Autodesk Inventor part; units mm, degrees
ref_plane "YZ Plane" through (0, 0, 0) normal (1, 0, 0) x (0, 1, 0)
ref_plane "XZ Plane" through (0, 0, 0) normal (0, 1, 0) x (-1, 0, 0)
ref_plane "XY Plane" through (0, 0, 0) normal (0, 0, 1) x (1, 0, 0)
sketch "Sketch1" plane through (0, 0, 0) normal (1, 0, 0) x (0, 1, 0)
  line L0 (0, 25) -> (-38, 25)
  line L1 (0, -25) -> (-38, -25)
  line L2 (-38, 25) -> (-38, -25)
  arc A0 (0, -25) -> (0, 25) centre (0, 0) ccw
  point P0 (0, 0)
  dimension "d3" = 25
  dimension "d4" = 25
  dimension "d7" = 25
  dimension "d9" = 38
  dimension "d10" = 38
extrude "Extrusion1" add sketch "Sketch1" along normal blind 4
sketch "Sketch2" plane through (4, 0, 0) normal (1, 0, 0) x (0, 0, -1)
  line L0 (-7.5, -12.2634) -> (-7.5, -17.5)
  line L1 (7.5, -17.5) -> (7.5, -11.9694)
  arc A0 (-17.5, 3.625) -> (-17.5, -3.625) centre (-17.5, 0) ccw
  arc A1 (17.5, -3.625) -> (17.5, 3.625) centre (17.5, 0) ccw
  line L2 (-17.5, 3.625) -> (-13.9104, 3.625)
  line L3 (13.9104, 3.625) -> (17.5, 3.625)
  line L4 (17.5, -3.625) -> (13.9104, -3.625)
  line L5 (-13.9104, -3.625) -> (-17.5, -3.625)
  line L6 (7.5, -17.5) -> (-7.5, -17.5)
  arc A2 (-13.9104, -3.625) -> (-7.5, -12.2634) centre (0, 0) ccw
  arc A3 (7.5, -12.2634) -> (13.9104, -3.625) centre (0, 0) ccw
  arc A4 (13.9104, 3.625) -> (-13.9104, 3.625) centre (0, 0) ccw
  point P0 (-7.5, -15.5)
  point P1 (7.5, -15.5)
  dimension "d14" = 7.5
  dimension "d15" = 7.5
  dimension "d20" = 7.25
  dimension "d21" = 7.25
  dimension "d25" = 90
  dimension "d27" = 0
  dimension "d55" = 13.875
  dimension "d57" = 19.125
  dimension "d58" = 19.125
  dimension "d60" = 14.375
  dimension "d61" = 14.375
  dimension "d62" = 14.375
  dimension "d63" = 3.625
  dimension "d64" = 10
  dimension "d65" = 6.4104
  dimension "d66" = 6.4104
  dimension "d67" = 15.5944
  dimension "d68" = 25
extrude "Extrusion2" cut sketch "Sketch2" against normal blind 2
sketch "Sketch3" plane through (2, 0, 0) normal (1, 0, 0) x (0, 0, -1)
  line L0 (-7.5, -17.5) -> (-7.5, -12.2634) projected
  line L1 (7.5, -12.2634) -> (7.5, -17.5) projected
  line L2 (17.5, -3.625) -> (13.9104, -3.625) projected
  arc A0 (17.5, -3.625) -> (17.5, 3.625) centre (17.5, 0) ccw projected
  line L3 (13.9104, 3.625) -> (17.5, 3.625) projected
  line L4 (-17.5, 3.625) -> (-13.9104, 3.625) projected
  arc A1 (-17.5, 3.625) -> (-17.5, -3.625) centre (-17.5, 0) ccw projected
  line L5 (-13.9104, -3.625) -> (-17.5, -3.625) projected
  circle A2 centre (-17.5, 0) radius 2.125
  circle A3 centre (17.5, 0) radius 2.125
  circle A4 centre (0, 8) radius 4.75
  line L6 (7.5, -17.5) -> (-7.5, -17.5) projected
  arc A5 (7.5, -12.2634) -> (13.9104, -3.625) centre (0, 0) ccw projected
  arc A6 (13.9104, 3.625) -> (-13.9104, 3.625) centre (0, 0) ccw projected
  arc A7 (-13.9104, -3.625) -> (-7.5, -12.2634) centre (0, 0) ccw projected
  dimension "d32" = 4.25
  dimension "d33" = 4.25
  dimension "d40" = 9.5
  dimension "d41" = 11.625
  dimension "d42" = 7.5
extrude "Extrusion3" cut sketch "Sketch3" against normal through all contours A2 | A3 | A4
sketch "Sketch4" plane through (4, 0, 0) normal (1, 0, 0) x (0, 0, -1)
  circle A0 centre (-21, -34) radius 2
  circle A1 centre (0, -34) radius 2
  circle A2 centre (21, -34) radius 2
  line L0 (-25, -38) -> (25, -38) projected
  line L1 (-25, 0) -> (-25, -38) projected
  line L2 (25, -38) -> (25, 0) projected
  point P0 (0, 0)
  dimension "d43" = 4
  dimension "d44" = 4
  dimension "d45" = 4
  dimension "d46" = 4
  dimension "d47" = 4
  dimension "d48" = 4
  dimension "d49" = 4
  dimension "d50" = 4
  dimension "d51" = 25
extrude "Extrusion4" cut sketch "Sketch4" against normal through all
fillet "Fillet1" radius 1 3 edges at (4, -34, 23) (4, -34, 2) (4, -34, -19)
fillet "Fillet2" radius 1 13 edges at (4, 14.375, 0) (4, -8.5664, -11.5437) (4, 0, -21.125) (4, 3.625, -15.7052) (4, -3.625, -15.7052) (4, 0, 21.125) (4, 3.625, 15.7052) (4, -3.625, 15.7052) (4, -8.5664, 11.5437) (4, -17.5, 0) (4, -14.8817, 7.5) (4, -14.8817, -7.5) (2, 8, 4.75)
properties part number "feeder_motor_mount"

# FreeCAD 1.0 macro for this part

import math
import FreeCAD as App
import Part
import Sketcher
from FreeCAD import Vector
Q = App.Units.Quantity


def edges_at(feature, points):
    """Names of the edges that pass closest to the given points."""
    edges = feature.Shape.Edges
    near = lambda p: min(range(len(edges)), key=lambda i: edges[i].distToShape(Part.Vertex(*p))[0])
    return sorted({f"Edge{near(p) + 1}" for p in points})

doc = App.newDocument("Part")
body = doc.addObject("PartDesign::Body", "Body")

# Sketch on YZ plane
sketch1 = body.newObject("Sketcher::SketchObject", "Sketch")
sketch1.AttachmentSupport = (doc.getObject("YZ_Plane"), [""])
sketch1.MapMode = "FlatFace"
sketch1.addGeometry(Part.ArcOfCircle(Part.Circle(Vector(0, 0, 0), Vector(0, 0, 1), 25), math.radians(-90), math.radians(90)), False)
sketch1.addGeometry(Part.LineSegment(Vector(0, 25, 0), Vector(-38, 25, 0)), False)
sketch1.addGeometry(Part.LineSegment(Vector(-38, 25, 0), Vector(-38, -25, 0)), False)
sketch1.addGeometry(Part.LineSegment(Vector(-38, -25, 0), Vector(0, -25, 0)), False)
sketch1.addConstraint(Sketcher.Constraint("Tangent", 0, 2, 1, 1))
sketch1.addConstraint(Sketcher.Constraint("Coincident", 1, 2, 2, 1))
sketch1.addConstraint(Sketcher.Constraint("Coincident", 2, 2, 3, 1))
sketch1.addConstraint(Sketcher.Constraint("Tangent", 3, 2, 0, 1))
sketch1.addConstraint(Sketcher.Constraint("Horizontal", 1))
sketch1.addConstraint(Sketcher.Constraint("Vertical", 2))
sketch1.addConstraint(Sketcher.Constraint("Horizontal", 3))
sketch1.addConstraint(Sketcher.Constraint("Coincident", 0, 3, -1, 1))
sketch1.addConstraint(Sketcher.Constraint("Radius", 0, Q("25 mm")))
sketch1.addConstraint(Sketcher.Constraint("DistanceX", 1, 2, 1, 1, Q("38 mm")))
pad1 = body.newObject("PartDesign::Pad", "Pad")
pad1.Profile = sketch1
pad1.Length = 4

# Sketch on YZ plane
sketch2 = body.newObject("Sketcher::SketchObject", "Sketch001")
sketch2.AttachmentSupport = (doc.getObject("YZ_Plane"), [""])
sketch2.MapMode = "FlatFace"
sketch2.AttachmentOffset = App.Placement(Vector(0, 0, 4), App.Rotation())
sketch2.addGeometry(Part.ArcOfCircle(Part.Circle(Vector(0, 0, 0), Vector(0, 0, 1), 14.4), math.radians(105), math.radians(149)), False)
sketch2.addGeometry(Part.LineSegment(Vector(-12.3, 7.5, 0), Vector(-17.5, 7.5, 0)), False)
sketch2.addGeometry(Part.LineSegment(Vector(-17.5, 7.5, 0), Vector(-17.5, -7.5, 0)), False)
sketch2.addGeometry(Part.LineSegment(Vector(-17.5, -7.5, 0), Vector(-12.3, -7.5, 0)), False)
sketch2.addGeometry(Part.ArcOfCircle(Part.Circle(Vector(0, 0, 0), Vector(0, 0, 1), 14.4), math.radians(-149), math.radians(-105)), False)
sketch2.addGeometry(Part.LineSegment(Vector(-3.6, -13.9, 0), Vector(-3.6, -17.5, 0)), False)
sketch2.addGeometry(Part.ArcOfCircle(Part.Circle(Vector(0, -17.5, 0), Vector(0, 0, 1), 3.6), math.radians(180), math.radians(360)), False)
sketch2.addGeometry(Part.LineSegment(Vector(3.6, -17.5, 0), Vector(3.6, -13.9, 0)), False)
sketch2.addGeometry(Part.ArcOfCircle(Part.Circle(Vector(0, 0, 0), Vector(0, 0, 1), 14.4), math.radians(-75), math.radians(75)), False)
sketch2.addGeometry(Part.LineSegment(Vector(3.6, 13.9, 0), Vector(3.6, 17.5, 0)), False)
sketch2.addGeometry(Part.ArcOfCircle(Part.Circle(Vector(0, 17.5, 0), Vector(0, 0, 1), 3.6), math.radians(0), math.radians(180)), False)
sketch2.addGeometry(Part.LineSegment(Vector(-3.6, 17.5, 0), Vector(-3.6, 13.9, 0)), False)
sketch2.addConstraint(Sketcher.Constraint("Coincident", 0, 2, 1, 1))
sketch2.addConstraint(Sketcher.Constraint("Coincident", 1, 2, 2, 1))
sketch2.addConstraint(Sketcher.Constraint("Coincident", 2, 2, 3, 1))
sketch2.addConstraint(Sketcher.Constraint("Coincident", 3, 2, 4, 1))
sketch2.addConstraint(Sketcher.Constraint("Coincident", 4, 2, 5, 1))
sketch2.addConstraint(Sketcher.Constraint("Tangent", 5, 2, 6, 1))
sketch2.addConstraint(Sketcher.Constraint("Tangent", 6, 2, 7, 1))
sketch2.addConstraint(Sketcher.Constraint("Coincident", 7, 2, 8, 1))
sketch2.addConstraint(Sketcher.Constraint("Coincident", 8, 2, 9, 1))
sketch2.addConstraint(Sketcher.Constraint("Tangent", 9, 2, 10, 1))
sketch2.addConstraint(Sketcher.Constraint("Tangent", 10, 2, 11, 1))
sketch2.addConstraint(Sketcher.Constraint("Coincident", 11, 2, 0, 1))
sketch2.addConstraint(Sketcher.Constraint("Horizontal", 1))
sketch2.addConstraint(Sketcher.Constraint("Vertical", 2))
sketch2.addConstraint(Sketcher.Constraint("Horizontal", 3))
sketch2.addConstraint(Sketcher.Constraint("Vertical", 5))
sketch2.addConstraint(Sketcher.Constraint("Vertical", 7))
sketch2.addConstraint(Sketcher.Constraint("Vertical", 9))
sketch2.addConstraint(Sketcher.Constraint("Vertical", 11))
sketch2.addConstraint(Sketcher.Constraint("Coincident", 0, 3, -1, 1))
sketch2.addConstraint(Sketcher.Constraint("Coincident", 4, 3, -1, 1))
sketch2.addConstraint(Sketcher.Constraint("Coincident", 8, 3, -1, 1))
sketch2.addConstraint(Sketcher.Constraint("Equal", 0, 4))
sketch2.addConstraint(Sketcher.Constraint("Equal", 4, 8))
sketch2.addConstraint(Sketcher.Constraint("Equal", 6, 10))
sketch2.addConstraint(Sketcher.Constraint("Symmetric", 6, 3, 10, 3, -1, 1))
sketch2.addConstraint(Sketcher.Constraint("PointOnObject", 6, 3, -2))
sketch2.addConstraint(Sketcher.Constraint("Vertical", 0, 2, 3, 2))
sketch2.addConstraint(Sketcher.Constraint("Radius", 0, Q("14.375 mm")))
sketch2.addConstraint(Sketcher.Constraint("Radius", 6, Q("3.625 mm")))
sketch2.addConstraint(Sketcher.Constraint("DistanceY", 0, 2, 10, 3, Q("10 mm")))
sketch2.addConstraint(Sketcher.Constraint("DistanceY", 6, 3, 0, 2, Q("25 mm")))
sketch2.addConstraint(Sketcher.Constraint("DistanceX", 2, 2, 5, 2, Q("13.875 mm")))
pocket1 = body.newObject("PartDesign::Pocket", "Pocket")
pocket1.Profile = sketch2
pocket1.Length = 2

# Sketch on YZ plane
sketch3 = body.newObject("Sketcher::SketchObject", "Sketch002")
sketch3.AttachmentSupport = (doc.getObject("YZ_Plane"), [""])
sketch3.MapMode = "FlatFace"
sketch3.AttachmentOffset = App.Placement(Vector(0, 0, 2), App.Rotation())
sketch3.addGeometry(Part.Circle(Vector(0, 17.5, 0), Vector(0, 0, 1), 2.1), False)
sketch3.addGeometry(Part.Circle(Vector(0, -17.5, 0), Vector(0, 0, 1), 2.1), False)
sketch3.addGeometry(Part.Circle(Vector(8, 0, 0), Vector(0, 0, 1), 4.8), False)
sketch3.addConstraint(Sketcher.Constraint("Equal", 0, 1))
sketch3.addConstraint(Sketcher.Constraint("Symmetric", 0, 3, 1, 3, -1, 1))
sketch3.addConstraint(Sketcher.Constraint("PointOnObject", 0, 3, -2))
sketch3.addConstraint(Sketcher.Constraint("PointOnObject", 2, 3, -1))
sketch3.addConstraint(Sketcher.Constraint("Diameter", 2, Q("9.5 mm")))
sketch3.addConstraint(Sketcher.Constraint("Diameter", 0, Q("4.25 mm")))
sketch3.addConstraint(Sketcher.Constraint("DistanceX", -1, 1, 2, 3, Q("8 mm")))
sketch3.addConstraint(Sketcher.Constraint("DistanceY", 1, 3, 0, 3, Q("35 mm")))
pocket2 = body.newObject("PartDesign::Pocket", "Pocket001")
pocket2.Profile = sketch3
pocket2.Type = "ThroughAll"

# Sketch on YZ plane
sketch4 = body.newObject("Sketcher::SketchObject", "Sketch003")
sketch4.AttachmentSupport = (doc.getObject("YZ_Plane"), [""])
sketch4.MapMode = "FlatFace"
sketch4.AttachmentOffset = App.Placement(Vector(0, 0, 4), App.Rotation())
sketch4.addGeometry(Part.Circle(Vector(-34, 21, 0), Vector(0, 0, 1), 2), False)
sketch4.addGeometry(Part.Circle(Vector(-34, 0, 0), Vector(0, 0, 1), 2), False)
sketch4.addGeometry(Part.Circle(Vector(-34, -21, 0), Vector(0, 0, 1), 2), False)
sketch4.addConstraint(Sketcher.Constraint("Equal", 0, 1))
sketch4.addConstraint(Sketcher.Constraint("Equal", 1, 2))
sketch4.addConstraint(Sketcher.Constraint("Symmetric", 0, 3, 2, 3, -1))
sketch4.addConstraint(Sketcher.Constraint("PointOnObject", 1, 3, -1))
sketch4.addConstraint(Sketcher.Constraint("Vertical", 0, 3, 1, 3))
sketch4.addConstraint(Sketcher.Constraint("Diameter", 0, Q("4 mm")))
sketch4.addConstraint(Sketcher.Constraint("DistanceX", 0, 3, -1, 1, Q("34 mm")))
sketch4.addConstraint(Sketcher.Constraint("DistanceY", -1, 1, 0, 3, Q("21 mm")))
pocket3 = body.newObject("PartDesign::Pocket", "Pocket002")
pocket3.Profile = sketch4
pocket3.Type = "ThroughAll"
doc.recompute()

fillet = body.newObject("PartDesign::Fillet", "Fillet")
fillet.Base = (pocket3, edges_at(pocket3, [(4, -34, 23), (4, -34, 2), (4, -34, -19)]))
fillet.Radius = 1
doc.recompute()

fillet2 = body.newObject("PartDesign::Fillet", "Fillet001")
fillet2.Base = (fillet, edges_at(fillet, [
    (4, 14.375, 0),
    (4, -8.566, -11.544),
    (4, 0, -21.125),
    (4, 3.625, -15.705),
    (4, -3.625, -15.705),
    (4, 0, 21.125),
    (4, 3.625, 15.705),
    (4, -3.625, 15.705),
    (4, -8.566, 11.544),
    (4, -17.5, 0),
    (4, -14.882, 7.5),
    (4, -14.882, -7.5),
    (2, 8, 4.75),
]))
fillet2.Radius = 1

doc.recompute()
